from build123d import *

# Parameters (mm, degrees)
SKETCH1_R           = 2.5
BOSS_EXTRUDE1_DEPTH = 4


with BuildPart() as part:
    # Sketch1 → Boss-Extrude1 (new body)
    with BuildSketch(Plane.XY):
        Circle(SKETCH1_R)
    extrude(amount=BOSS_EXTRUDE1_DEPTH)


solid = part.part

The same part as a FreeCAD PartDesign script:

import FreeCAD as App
import Part
import Sketcher
Q = App.Units.Quantity

doc = App.newDocument("Part")
body = doc.addObject("PartDesign::Body", "Body")

# Sketch on XY plane
sketch1 = body.newObject("Sketcher::SketchObject", "Sketch")
sketch1.AttachmentSupport = (doc.getObject("XY_Plane"), [""])
sketch1.MapMode = "FlatFace"
sketch1.addGeometry(Part.Circle(App.Vector(0, 0, 0), App.Vector(0, 0, 1), 2.5), False)
sketch1.addConstraint([
    Sketcher.Constraint("Coincident", 0, 3, -1, 1),
    Sketcher.Constraint("Diameter", 0, Q("5 mm")),
])
pad1 = body.newObject("PartDesign::Pad", "Pad")
pad1.Profile = sketch1
pad1.Length = 4

doc.recompute()
